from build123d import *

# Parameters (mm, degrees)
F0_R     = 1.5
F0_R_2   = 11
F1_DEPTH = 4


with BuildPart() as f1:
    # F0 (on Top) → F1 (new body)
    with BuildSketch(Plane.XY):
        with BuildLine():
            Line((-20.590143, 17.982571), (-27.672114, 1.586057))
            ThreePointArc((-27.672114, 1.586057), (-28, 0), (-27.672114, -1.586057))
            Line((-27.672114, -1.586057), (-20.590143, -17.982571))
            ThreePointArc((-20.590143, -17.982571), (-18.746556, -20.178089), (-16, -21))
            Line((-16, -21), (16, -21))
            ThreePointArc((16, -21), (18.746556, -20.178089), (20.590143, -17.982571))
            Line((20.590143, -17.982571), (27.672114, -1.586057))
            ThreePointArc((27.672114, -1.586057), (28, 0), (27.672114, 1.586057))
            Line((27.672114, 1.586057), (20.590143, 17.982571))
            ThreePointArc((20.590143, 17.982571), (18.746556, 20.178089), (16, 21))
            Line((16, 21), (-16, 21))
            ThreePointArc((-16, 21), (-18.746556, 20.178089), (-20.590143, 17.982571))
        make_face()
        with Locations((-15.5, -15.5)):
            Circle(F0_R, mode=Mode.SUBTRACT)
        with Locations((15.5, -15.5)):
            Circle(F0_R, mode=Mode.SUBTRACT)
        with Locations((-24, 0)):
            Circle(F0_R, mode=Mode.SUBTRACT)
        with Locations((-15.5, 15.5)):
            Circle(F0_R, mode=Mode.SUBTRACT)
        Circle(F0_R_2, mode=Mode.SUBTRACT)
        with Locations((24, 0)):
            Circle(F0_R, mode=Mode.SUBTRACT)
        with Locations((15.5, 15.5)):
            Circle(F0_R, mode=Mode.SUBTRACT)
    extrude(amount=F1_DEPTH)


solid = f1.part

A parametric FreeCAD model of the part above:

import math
import FreeCAD as App
import Part
import Sketcher
from FreeCAD import Vector
Q = App.Units.Quantity

doc = App.newDocument("Part")
body = doc.addObject("PartDesign::Body", "Body")

# Sketch on XY plane
sketch1 = body.newObject("Sketcher::SketchObject", "Sketch")
sketch1.AttachmentSupport = (doc.getObject("XY_Plane"), [""])
sketch1.MapMode = "FlatFace"
sketch1.addGeometry([
    Part.LineSegment(Vector(-20.590143, 17.982571, 0), Vector(-27.672114, 1.586057, 0)),  # 0
    Part.ArcOfCircle(Part.Circle(Vector(-24.000003, 0, 0), Vector(0, 0, 1), 3.999997), math.radians(156.639534), math.radians(203.360466)),  # 1
    Part.LineSegment(Vector(-27.672114, -1.586057, 0), Vector(-20.590143, -17.982571, 0)),  # 2
    Part.ArcOfCircle(Part.Circle(Vector(-15.999999, -15.999999, 0), Vector(0, 0, 1), 5.000001), math.radians(-156.639545), math.radians(-90.00001)),  # 3
    Part.LineSegment(Vector(-16, -21, 0), Vector(16, -21, 0)),  # 4
    Part.ArcOfCircle(Part.Circle(Vector(15.999999, -15.999999, 0), Vector(0, 0, 1), 5.000001), math.radians(-89.99999), math.radians(-23.360455)),  # 5
    Part.LineSegment(Vector(20.590143, -17.982571, 0), Vector(27.672114, -1.586057, 0)),  # 6
    Part.ArcOfCircle(Part.Circle(Vector(24.000003, 0, 0), Vector(0, 0, 1), 3.999997), math.radians(-23.360466), math.radians(23.360466)),  # 7
    Part.LineSegment(Vector(27.672114, 1.586057, 0), Vector(20.590143, 17.982571, 0)),  # 8
    Part.ArcOfCircle(Part.Circle(Vector(15.999999, 15.999999, 0), Vector(0, 0, 1), 5.000001), math.radians(23.360455), math.radians(89.99999)),  # 9
    Part.LineSegment(Vector(16, 21, 0), Vector(-16, 21, 0)),  # 10
    Part.ArcOfCircle(Part.Circle(Vector(-15.999999, 15.999999, 0), Vector(0, 0, 1), 5.000001), math.radians(90.00001), math.radians(156.639545)),  # 11
    Part.Circle(Vector(-15.5, -15.5, 0), Vector(0, 0, 1), 1.5),  # 12
    Part.Circle(Vector(15.5, -15.5, 0), Vector(0, 0, 1), 1.5),  # 13
    Part.Circle(Vector(-24, 0, 0), Vector(0, 0, 1), 1.5),  # 14
    Part.Circle(Vector(-15.5, 15.5, 0), Vector(0, 0, 1), 1.5),  # 15
    Part.Circle(Vector(0, 0, 0), Vector(0, 0, 1), 11),  # 16
    Part.Circle(Vector(24, 0, 0), Vector(0, 0, 1), 1.5),  # 17
    Part.Circle(Vector(15.5, 15.5, 0), Vector(0, 0, 1), 1.5),  # 18
], False)
sketch1.addConstraint([
    Sketcher.Constraint("Tangent", 0, 2, 1, 1),
    Sketcher.Constraint("Tangent", 1, 2, 2, 1),
    Sketcher.Constraint("Tangent", 2, 2, 3, 1),
    Sketcher.Constraint("Tangent", 3, 2, 4, 1),
    Sketcher.Constraint("Tangent", 4, 2, 5, 1),
    Sketcher.Constraint("Tangent", 5, 2, 6, 1),
    Sketcher.Constraint("Tangent", 6, 2, 7, 1),
    Sketcher.Constraint("Tangent", 7, 2, 8, 1),
    Sketcher.Constraint("Tangent", 8, 2, 9, 1),
    Sketcher.Constraint("Tangent", 9, 2, 10, 1),
    Sketcher.Constraint("Tangent", 10, 2, 11, 1),
    Sketcher.Constraint("Tangent", 11, 2, 0, 1),
    Sketcher.Constraint("Horizontal", 4),
    Sketcher.Constraint("Horizontal", 10),
    Sketcher.Constraint("Coincident", 16, 3, -1, 1),
    Sketcher.Constraint("Coincident", 14, 3, 1, 3),
    Sketcher.Constraint("Coincident", 17, 3, 7, 3),
    Sketcher.Constraint("Equal", 3, 5),
    Sketcher.Constraint("Equal", 1, 7),
    Sketcher.Constraint("Equal", 5, 9),
    Sketcher.Constraint("Equal", 9, 11),
    Sketcher.Constraint("Equal", 12, 13),
    Sketcher.Constraint("Equal", 13, 14),
    Sketcher.Constraint("Equal", 14, 15),
    Sketcher.Constraint("Equal", 15, 17),
    Sketcher.Constraint("Equal", 17, 18),
    Sketcher.Constraint("Symmetric", 1, 3, 7, 3, -1, 1),
    Sketcher.Constraint("Symmetric", 3, 3, 9, 3, -1, 1),
    Sketcher.Constraint("Symmetric", 13, 3, 15, 3, -1, 1),
    Sketcher.Constraint("Symmetric", 12, 3, 18, 3, -1, 1),
    Sketcher.Constraint("Symmetric", 12, 3, 13, 3, -2),
    Sketcher.Constraint("Symmetric", 2, 2, 5, 2, -2),
    Sketcher.Constraint("Parallel", 0, 6),
    Sketcher.Constraint("Diameter", 12, Q("3 mm")),
    Sketcher.Constraint("Diameter", 16, Q("22 mm")),
    Sketcher.Constraint("Radius", 3, Q("5.000001 mm")),
    Sketcher.Constraint("DistanceX", 4, 1, 4, 2, Q("32 mm")),
    Sketcher.Constraint("DistanceY", 3, 3, -1, 1, Q("15.999999 mm")),
    Sketcher.Constraint("DistanceX", 14, 3, -1, 1, Q("24 mm")),
    Sketcher.Constraint("DistanceX", 12, 3, 13, 3, Q("31 mm")),
    Sketcher.Constraint("DistanceY", 12, 3, 15, 3, Q("31 mm")),
    Sketcher.Constraint("Radius", 1, Q("3.999997 mm")),
])
pad1 = body.newObject("PartDesign::Pad", "Pad")
pad1.Profile = sketch1
pad1.Length = 4

doc.recompute()
